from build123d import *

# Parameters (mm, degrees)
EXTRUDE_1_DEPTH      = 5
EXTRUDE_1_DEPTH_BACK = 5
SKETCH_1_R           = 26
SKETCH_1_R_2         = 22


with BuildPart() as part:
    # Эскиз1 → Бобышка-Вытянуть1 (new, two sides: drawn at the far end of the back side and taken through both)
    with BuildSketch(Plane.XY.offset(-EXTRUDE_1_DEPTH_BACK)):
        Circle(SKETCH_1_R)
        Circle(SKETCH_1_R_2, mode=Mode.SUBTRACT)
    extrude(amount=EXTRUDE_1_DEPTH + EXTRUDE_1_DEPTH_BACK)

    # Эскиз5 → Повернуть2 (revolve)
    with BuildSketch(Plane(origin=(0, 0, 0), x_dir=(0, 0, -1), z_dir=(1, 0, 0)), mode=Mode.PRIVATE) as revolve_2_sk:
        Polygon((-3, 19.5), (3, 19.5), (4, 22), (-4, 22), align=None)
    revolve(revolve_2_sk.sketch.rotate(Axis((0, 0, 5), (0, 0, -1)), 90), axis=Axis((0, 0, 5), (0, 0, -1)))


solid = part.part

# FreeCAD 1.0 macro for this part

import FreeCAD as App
import Part
import Sketcher

doc = App.newDocument("Part")
body = doc.addObject("PartDesign::Body", "Body")

# Sketch on XY plane
sketch1 = body.newObject("Sketcher::SketchObject", "Sketch")
sketch1.AttachmentSupport = (doc.getObject("XY_Plane"), [""])
sketch1.MapMode = "FlatFace"
sketch1.addGeometry([
    Part.Circle(App.Vector(0, 0, 0), App.Vector(0, 0, 1), 26),
    Part.Circle(App.Vector(0, 0, 0), App.Vector(0, 0, 1), 22),
], False)
sketch1.addConstraint([
    Sketcher.Constraint("Coincident", 0, 3, -1, 1),
    Sketcher.Constraint("Coincident", 1, 3, -1, 1),
    Sketcher.Constraint("Diameter", 0, 52.0),
    Sketcher.Constraint("Diameter", 1, 44.0),
])
pad1 = body.newObject("PartDesign::Pad", "Pad")
pad1.Profile = sketch1
pad1.Type = "TwoLengths"
pad1.Length = 5
pad1.Length2 = 5

# Sketch on YZ plane
sketch2 = body.newObject("Sketcher::SketchObject", "Sketch001")
sketch2.AttachmentSupport = (doc.getObject("YZ_Plane"), [""])
sketch2.MapMode = "FlatFace"
sketch2.addGeometry([
    Part.LineSegment(App.Vector(19.5, 3, 0), App.Vector(19.5, -3, 0)),
    Part.LineSegment(App.Vector(19.5, -3, 0), App.Vector(22, -4, 0)),
    Part.LineSegment(App.Vector(22, -4, 0), App.Vector(22, 4, 0)),
    Part.LineSegment(App.Vector(22, 4, 0), App.Vector(19.5, 3, 0)),
], False)
sketch2.addConstraint([
    Sketcher.Constraint("Coincident", 0, 2, 1, 1),
    Sketcher.Constraint("Coincident", 1, 2, 2, 1),
    Sketcher.Constraint("Coincident", 2, 2, 3, 1),
    Sketcher.Constraint("Coincident", 3, 2, 0, 1),
    Sketcher.Constraint("Vertical", 0),
    Sketcher.Constraint("Vertical", 2),
    Sketcher.Constraint("Equal", 1, 3),
    Sketcher.Constraint("DistanceY", 0, 2, 0, 1, 6.0),
    Sketcher.Constraint("DistanceY", 2, 1, 2, 2, 8.0),
    Sketcher.Constraint("DistanceY", 0, 2, -1, 1, 3.0),
    Sketcher.Constraint("DistanceX", -1, 1, 1, 2, 22.0),
    Sketcher.Constraint("DistanceX", -1, 1, 0, 2, 19.5),
])
revolution = body.newObject("PartDesign::Revolution", "Revolution")
revolution.Profile = sketch2
revolution.ReferenceAxis = (sketch2, ["V_Axis"])
revolution.Angle = 360

doc.recompute()
